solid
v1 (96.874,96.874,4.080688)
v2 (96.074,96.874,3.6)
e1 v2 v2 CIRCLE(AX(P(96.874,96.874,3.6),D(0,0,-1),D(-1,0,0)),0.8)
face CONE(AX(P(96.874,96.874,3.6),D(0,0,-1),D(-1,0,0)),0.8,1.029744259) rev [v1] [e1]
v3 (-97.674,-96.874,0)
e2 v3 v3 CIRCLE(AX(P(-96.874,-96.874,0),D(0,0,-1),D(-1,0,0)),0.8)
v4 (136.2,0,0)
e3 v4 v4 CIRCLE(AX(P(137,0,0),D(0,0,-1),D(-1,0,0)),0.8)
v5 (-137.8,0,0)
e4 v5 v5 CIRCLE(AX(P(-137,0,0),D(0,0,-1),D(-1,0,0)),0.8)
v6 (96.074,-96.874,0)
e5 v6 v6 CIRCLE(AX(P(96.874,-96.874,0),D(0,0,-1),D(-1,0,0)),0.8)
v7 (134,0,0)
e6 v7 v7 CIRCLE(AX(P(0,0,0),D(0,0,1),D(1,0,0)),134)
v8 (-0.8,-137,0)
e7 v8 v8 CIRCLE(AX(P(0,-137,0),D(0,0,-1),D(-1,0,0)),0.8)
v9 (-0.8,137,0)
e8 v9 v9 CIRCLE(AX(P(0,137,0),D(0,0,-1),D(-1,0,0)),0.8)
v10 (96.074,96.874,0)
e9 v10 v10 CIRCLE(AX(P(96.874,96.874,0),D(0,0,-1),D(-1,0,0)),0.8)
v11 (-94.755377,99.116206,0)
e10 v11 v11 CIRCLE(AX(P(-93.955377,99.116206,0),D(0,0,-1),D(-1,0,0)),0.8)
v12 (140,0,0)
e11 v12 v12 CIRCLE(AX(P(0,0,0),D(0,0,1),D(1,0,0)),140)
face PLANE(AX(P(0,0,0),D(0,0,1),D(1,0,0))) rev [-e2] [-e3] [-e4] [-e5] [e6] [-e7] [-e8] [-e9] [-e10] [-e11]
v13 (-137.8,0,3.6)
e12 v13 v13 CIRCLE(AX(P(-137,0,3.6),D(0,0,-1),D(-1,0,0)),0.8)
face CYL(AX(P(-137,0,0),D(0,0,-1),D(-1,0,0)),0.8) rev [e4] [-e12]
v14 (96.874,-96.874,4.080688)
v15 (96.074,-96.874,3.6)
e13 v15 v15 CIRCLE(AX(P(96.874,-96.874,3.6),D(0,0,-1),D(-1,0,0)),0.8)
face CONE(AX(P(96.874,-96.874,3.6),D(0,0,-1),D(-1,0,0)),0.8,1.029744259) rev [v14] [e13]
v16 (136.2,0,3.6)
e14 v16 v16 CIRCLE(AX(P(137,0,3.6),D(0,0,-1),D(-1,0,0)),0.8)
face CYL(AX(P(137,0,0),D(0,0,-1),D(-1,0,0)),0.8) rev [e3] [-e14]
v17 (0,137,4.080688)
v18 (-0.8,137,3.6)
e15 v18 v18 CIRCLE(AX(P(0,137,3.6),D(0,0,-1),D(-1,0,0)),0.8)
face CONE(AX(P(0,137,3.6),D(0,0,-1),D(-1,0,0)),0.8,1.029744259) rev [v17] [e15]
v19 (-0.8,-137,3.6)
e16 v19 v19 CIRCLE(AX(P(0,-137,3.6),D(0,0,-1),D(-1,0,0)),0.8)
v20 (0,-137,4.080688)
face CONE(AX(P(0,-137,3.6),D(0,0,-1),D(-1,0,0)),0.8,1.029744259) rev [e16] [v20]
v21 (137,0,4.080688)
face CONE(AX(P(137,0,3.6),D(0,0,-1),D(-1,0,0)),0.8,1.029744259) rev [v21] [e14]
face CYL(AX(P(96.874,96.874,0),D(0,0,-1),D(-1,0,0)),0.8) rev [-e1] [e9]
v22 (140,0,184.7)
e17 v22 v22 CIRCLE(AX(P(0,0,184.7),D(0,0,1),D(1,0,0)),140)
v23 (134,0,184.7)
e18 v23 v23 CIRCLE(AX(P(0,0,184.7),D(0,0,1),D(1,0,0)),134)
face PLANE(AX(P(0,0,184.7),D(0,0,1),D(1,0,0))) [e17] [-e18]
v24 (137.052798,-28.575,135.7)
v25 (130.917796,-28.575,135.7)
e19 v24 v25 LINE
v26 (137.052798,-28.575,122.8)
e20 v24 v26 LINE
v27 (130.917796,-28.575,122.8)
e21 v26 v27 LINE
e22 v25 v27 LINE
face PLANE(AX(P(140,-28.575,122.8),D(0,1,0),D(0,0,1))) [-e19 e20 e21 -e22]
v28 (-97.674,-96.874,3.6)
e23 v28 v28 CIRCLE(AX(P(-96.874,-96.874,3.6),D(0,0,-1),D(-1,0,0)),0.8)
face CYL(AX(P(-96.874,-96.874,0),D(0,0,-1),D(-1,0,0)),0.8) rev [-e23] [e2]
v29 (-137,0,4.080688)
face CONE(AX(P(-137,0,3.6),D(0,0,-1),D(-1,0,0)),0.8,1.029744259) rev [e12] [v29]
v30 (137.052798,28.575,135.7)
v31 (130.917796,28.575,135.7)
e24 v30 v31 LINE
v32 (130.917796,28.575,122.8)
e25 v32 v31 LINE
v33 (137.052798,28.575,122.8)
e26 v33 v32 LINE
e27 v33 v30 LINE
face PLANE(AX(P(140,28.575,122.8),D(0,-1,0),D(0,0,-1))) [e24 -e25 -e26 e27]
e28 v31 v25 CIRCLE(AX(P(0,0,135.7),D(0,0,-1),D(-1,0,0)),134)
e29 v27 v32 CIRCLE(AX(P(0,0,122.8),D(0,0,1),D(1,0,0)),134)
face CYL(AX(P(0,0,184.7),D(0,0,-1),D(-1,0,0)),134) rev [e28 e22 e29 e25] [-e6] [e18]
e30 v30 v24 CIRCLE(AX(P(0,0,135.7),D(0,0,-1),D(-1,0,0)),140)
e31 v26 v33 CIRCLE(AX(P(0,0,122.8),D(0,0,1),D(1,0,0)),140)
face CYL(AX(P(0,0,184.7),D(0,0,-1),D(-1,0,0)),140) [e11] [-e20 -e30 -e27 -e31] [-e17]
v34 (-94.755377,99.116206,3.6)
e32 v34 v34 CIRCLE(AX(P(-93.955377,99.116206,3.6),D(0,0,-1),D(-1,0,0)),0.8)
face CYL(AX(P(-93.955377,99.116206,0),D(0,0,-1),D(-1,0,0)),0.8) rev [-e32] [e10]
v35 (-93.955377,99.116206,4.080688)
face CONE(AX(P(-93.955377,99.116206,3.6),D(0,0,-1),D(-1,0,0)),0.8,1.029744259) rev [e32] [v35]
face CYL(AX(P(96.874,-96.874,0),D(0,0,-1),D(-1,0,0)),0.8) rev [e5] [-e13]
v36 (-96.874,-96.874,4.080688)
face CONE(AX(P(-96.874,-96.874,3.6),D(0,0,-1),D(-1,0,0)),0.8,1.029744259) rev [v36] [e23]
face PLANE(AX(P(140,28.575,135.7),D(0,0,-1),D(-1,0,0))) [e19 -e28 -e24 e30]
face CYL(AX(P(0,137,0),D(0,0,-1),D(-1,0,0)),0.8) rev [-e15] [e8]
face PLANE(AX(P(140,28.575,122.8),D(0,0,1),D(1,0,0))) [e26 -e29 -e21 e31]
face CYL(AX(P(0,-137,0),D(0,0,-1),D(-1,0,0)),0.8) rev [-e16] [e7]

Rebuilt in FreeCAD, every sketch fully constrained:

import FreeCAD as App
import Part
import Sketcher

V = App.Vector

doc = App.newDocument("Part")
params = doc.addObject("Spreadsheet::Sheet", "Params")
for row, (alias, value) in enumerate([
    ("sketch1_diameter", "280 mm"),
    ("sketch1_diameter2", "268 mm"),
    ("pad1_length", "184.7 mm"),
    ("sketch2_diameter", "1.6 mm"),
    ("hole_diameter", "1.6 mm"),
    ("hole_depth", "3.6 mm"),
    ("sketch3_height", "12.9 mm"),
    ("sketch3_width", "57.15 mm"),
    ("pocket1_length", "140 mm"),
], start=1):
    params.set(f"A{row}", alias)
    params.set(f"B{row}", "=" + value)
    params.setAlias(f"B{row}", alias)

body = doc.addObject("PartDesign::Body", "Body")

sketch1 = body.newObject("Sketcher::SketchObject", "Sketch")
sketch1.AttachmentSupport = (doc.getObject("XY_Plane"), [""])
sketch1.MapMode = "FlatFace"
sketch1.addGeometry([
    Part.Circle(V(0, 0, 0), V(0, 0, 1), 140),
    Part.Circle(V(0, 0, 0), V(0, 0, 1), 134),
], False)
sketch1.addConstraint([
    Sketcher.Constraint("Coincident", 0, 3, -1, 1),
    Sketcher.Constraint("Coincident", 1, 3, -1, 1),
    Sketcher.Constraint("Diameter", 0, 280.0),
    Sketcher.Constraint("Diameter", 1, 268.0),
])
sketch1.setExpression("Constraints[2]", "Params.sketch1_diameter")
sketch1.setExpression("Constraints[3]", "Params.sketch1_diameter2")
pad1 = body.newObject("PartDesign::Pad", "Pad")
pad1.Profile = sketch1
pad1.setExpression("Length", "Params.pad1_length")

sketch2 = body.newObject("Sketcher::SketchObject", "Sketch001")
sketch2.AttachmentSupport = (doc.getObject("XY_Plane"), [""])
sketch2.MapMode = "FlatFace"
sketch2.addGeometry([
    Part.Circle(V(0, 137, 0), V(0, 0, 1), 0.8),
    Part.Circle(V(-137, 0, 0), V(0, 0, 1), 0.8),
    Part.Circle(V(-94, 99.1, 0), V(0, 0, 1), 0.8),
    Part.Circle(V(-96.9, -96.9, 0), V(0, 0, 1), 0.8),
    Part.Circle(V(0, -137, 0), V(0, 0, 1), 0.8),
    Part.Circle(V(96.9, -96.9, 0), V(0, 0, 1), 0.8),
    Part.Circle(V(137, 0, 0), V(0, 0, 1), 0.8),
    Part.Circle(V(96.9, 96.9, 0), V(0, 0, 1), 0.8),
], False)
sketch2.addConstraint([
    Sketcher.Constraint("Equal", 0, 1),
    Sketcher.Constraint("Equal", 1, 2),
    Sketcher.Constraint("Equal", 2, 3),
    Sketcher.Constraint("Equal", 3, 4),
    Sketcher.Constraint("Equal", 4, 5),
    Sketcher.Constraint("Equal", 5, 6),
    Sketcher.Constraint("Equal", 6, 7),
    Sketcher.Constraint("Symmetric", 0, 3, 4, 3, -1, 1),
    Sketcher.Constraint("Symmetric", 1, 3, 6, 3, -1, 1),
    Sketcher.Constraint("Symmetric", 3, 3, 7, 3, -1, 1),
    Sketcher.Constraint("Symmetric", 3, 3, 5, 3, -2),
    Sketcher.Constraint("PointOnObject", 0, 3, -2),
    Sketcher.Constraint("PointOnObject", 1, 3, -1),
    Sketcher.Constraint("Diameter", 0, 1.6),
    Sketcher.Constraint("DistanceY", -1, 1, 0, 3, 137.0),
    Sketcher.Constraint("DistanceX", 1, 3, -1, 1, 137.0),
    Sketcher.Constraint("DistanceX", 3, 3, -1, 1, 96.874),
    Sketcher.Constraint("DistanceY", 3, 3, -1, 1, 96.874),
    Sketcher.Constraint("DistanceX", 2, 3, -1, 1, 93.955377),
    Sketcher.Constraint("DistanceY", -1, 1, 2, 3, 99.116206),
])
sketch2.setExpression("Constraints[13]", "Params.sketch2_diameter")
doc.recompute()
hole = body.newObject("PartDesign::Hole", "Hole")
hole.Profile = sketch2
hole.ThreadType = "None"
hole.setExpression("Diameter", "Params.hole_diameter")
hole.DepthType = "Dimension"
hole.setExpression("Depth", "Params.hole_depth")
hole.DrillPoint = "Angled"
hole.DrillPointAngle = 118
hole.Reversed = True

sketch3 = body.newObject("Sketcher::SketchObject", "Sketch002")
sketch3.AttachmentSupport = (doc.getObject("YZ_Plane"), [""])
sketch3.MapMode = "FlatFace"
sketch3.addGeometry([
    Part.LineSegment(V(29, 136, 0), V(-29, 136, 0)),
    Part.LineSegment(V(-29, 136, 0), V(-29, 123, 0)),
    Part.LineSegment(V(-29, 123, 0), V(29, 123, 0)),
    Part.LineSegment(V(29, 123, 0), V(29, 136, 0)),
], False)
sketch3.addConstraint([
    Sketcher.Constraint("Coincident", 0, 2, 1, 1),
    Sketcher.Constraint("Coincident", 1, 2, 2, 1),
    Sketcher.Constraint("Coincident", 2, 2, 3, 1),
    Sketcher.Constraint("Coincident", 3, 2, 0, 1),
    Sketcher.Constraint("Horizontal", 0),
    Sketcher.Constraint("Vertical", 1),
    Sketcher.Constraint("Horizontal", 2),
    Sketcher.Constraint("Vertical", 3),
    Sketcher.Constraint("DistanceY", 1, 2, 1, 1, 12.9),
    Sketcher.Constraint("DistanceX", 0, 2, 0, 1, 57.15),
    Sketcher.Constraint("DistanceY", -1, 1, 0, 2, 135.7),
    Sketcher.Constraint("DistanceX", 0, 2, -1, 1, 28.575),
])
sketch3.setExpression("Constraints[8]", "Params.sketch3_height")
sketch3.setExpression("Constraints[9]", "Params.sketch3_width")
pocket1 = body.newObject("PartDesign::Pocket", "Pocket")
pocket1.Profile = sketch3
pocket1.setExpression("Length", "Params.pocket1_length")
pocket1.Reversed = True

doc.recompute()
